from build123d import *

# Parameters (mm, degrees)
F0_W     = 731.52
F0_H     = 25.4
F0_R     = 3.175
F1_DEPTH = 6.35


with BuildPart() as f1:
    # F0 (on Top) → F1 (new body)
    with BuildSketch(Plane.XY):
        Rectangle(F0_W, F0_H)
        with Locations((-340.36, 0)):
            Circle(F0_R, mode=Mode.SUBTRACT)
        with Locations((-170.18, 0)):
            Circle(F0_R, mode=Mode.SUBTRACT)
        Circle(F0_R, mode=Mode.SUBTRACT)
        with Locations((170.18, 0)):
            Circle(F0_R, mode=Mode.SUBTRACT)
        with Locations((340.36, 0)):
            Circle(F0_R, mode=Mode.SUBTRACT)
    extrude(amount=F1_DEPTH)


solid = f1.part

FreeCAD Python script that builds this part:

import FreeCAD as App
import Part
import Sketcher
Q = App.Units.Quantity


def add_polygon(sketch, points):
    """Adds a closed chain of lines whose ends are joined by coincident constraints."""
    first, n = sketch.GeometryCount, len(points)
    for a, b in zip(points, points[1:] + points[:1]):
        sketch.addGeometry(Part.LineSegment(App.Vector(*a, 0), App.Vector(*b, 0)), False)
    for i in range(n):
        sketch.addConstraint(Sketcher.Constraint("Coincident", first + i, 2, first + (i + 1) % n, 1))

doc = App.newDocument("Part")
body = doc.addObject("PartDesign::Body", "Body")

# Sketch on XY plane
sketch1 = body.newObject("Sketcher::SketchObject", "Sketch")
sketch1.AttachmentSupport = (doc.getObject("XY_Plane"), [""])
sketch1.MapMode = "FlatFace"
add_polygon(sketch1, [(-365.8, 12.7), (-365.8, -12.7), (365.8, -12.7), (365.8, 12.7)])  # lines 0-3
sketch1.addGeometry(Part.Circle(App.Vector(-340.4, 0, 0), App.Vector(0, 0, 1), 3.2), False)  # 4
sketch1.addGeometry(Part.Circle(App.Vector(-170.2, 0, 0), App.Vector(0, 0, 1), 3.2), False)  # 5
sketch1.addGeometry(Part.Circle(App.Vector(0, 0, 0), App.Vector(0, 0, 1), 3.2), False)  # 6
sketch1.addGeometry(Part.Circle(App.Vector(170.2, 0, 0), App.Vector(0, 0, 1), 3.2), False)  # 7
sketch1.addGeometry(Part.Circle(App.Vector(340.4, 0, 0), App.Vector(0, 0, 1), 3.2), False)  # 8
sketch1.addConstraint([
    Sketcher.Constraint("Vertical", 0),
    Sketcher.Constraint("Horizontal", 1),
    Sketcher.Constraint("Vertical", 2),
    Sketcher.Constraint("Horizontal", 3),
    Sketcher.Constraint("Coincident", 6, 3, -1, 1),
    Sketcher.Constraint("Equal", 4, 5),
    Sketcher.Constraint("Equal", 5, 6),
    Sketcher.Constraint("Equal", 6, 7),
    Sketcher.Constraint("Equal", 7, 8),
    Sketcher.Constraint("Symmetric", 5, 3, 7, 3, -1, 1),
    Sketcher.Constraint("Symmetric", 4, 3, 8, 3, -1, 1),
    Sketcher.Constraint("Symmetric", 0, 2, 2, 2, -1, 1),
    Sketcher.Constraint("PointOnObject", 4, 3, -1),
    Sketcher.Constraint("PointOnObject", 5, 3, -1),
    Sketcher.Constraint("Diameter", 4, Q("0.25 in")),
    Sketcher.Constraint("DistanceY", 0, 2, 0, 1, Q("1 in")),
    Sketcher.Constraint("DistanceX", 1, 1, 1, 2, Q("28.8 in")),
    Sketcher.Constraint("DistanceX", 0, 2, 4, 3, Q("1 in")),
    Sketcher.Constraint("DistanceX", 5, 3, -1, 1, Q("6.7 in")),
])
pad1 = body.newObject("PartDesign::Pad", "Pad")
pad1.Profile = sketch1
pad1.Length = Q("0.25 in")

doc.recompute()
